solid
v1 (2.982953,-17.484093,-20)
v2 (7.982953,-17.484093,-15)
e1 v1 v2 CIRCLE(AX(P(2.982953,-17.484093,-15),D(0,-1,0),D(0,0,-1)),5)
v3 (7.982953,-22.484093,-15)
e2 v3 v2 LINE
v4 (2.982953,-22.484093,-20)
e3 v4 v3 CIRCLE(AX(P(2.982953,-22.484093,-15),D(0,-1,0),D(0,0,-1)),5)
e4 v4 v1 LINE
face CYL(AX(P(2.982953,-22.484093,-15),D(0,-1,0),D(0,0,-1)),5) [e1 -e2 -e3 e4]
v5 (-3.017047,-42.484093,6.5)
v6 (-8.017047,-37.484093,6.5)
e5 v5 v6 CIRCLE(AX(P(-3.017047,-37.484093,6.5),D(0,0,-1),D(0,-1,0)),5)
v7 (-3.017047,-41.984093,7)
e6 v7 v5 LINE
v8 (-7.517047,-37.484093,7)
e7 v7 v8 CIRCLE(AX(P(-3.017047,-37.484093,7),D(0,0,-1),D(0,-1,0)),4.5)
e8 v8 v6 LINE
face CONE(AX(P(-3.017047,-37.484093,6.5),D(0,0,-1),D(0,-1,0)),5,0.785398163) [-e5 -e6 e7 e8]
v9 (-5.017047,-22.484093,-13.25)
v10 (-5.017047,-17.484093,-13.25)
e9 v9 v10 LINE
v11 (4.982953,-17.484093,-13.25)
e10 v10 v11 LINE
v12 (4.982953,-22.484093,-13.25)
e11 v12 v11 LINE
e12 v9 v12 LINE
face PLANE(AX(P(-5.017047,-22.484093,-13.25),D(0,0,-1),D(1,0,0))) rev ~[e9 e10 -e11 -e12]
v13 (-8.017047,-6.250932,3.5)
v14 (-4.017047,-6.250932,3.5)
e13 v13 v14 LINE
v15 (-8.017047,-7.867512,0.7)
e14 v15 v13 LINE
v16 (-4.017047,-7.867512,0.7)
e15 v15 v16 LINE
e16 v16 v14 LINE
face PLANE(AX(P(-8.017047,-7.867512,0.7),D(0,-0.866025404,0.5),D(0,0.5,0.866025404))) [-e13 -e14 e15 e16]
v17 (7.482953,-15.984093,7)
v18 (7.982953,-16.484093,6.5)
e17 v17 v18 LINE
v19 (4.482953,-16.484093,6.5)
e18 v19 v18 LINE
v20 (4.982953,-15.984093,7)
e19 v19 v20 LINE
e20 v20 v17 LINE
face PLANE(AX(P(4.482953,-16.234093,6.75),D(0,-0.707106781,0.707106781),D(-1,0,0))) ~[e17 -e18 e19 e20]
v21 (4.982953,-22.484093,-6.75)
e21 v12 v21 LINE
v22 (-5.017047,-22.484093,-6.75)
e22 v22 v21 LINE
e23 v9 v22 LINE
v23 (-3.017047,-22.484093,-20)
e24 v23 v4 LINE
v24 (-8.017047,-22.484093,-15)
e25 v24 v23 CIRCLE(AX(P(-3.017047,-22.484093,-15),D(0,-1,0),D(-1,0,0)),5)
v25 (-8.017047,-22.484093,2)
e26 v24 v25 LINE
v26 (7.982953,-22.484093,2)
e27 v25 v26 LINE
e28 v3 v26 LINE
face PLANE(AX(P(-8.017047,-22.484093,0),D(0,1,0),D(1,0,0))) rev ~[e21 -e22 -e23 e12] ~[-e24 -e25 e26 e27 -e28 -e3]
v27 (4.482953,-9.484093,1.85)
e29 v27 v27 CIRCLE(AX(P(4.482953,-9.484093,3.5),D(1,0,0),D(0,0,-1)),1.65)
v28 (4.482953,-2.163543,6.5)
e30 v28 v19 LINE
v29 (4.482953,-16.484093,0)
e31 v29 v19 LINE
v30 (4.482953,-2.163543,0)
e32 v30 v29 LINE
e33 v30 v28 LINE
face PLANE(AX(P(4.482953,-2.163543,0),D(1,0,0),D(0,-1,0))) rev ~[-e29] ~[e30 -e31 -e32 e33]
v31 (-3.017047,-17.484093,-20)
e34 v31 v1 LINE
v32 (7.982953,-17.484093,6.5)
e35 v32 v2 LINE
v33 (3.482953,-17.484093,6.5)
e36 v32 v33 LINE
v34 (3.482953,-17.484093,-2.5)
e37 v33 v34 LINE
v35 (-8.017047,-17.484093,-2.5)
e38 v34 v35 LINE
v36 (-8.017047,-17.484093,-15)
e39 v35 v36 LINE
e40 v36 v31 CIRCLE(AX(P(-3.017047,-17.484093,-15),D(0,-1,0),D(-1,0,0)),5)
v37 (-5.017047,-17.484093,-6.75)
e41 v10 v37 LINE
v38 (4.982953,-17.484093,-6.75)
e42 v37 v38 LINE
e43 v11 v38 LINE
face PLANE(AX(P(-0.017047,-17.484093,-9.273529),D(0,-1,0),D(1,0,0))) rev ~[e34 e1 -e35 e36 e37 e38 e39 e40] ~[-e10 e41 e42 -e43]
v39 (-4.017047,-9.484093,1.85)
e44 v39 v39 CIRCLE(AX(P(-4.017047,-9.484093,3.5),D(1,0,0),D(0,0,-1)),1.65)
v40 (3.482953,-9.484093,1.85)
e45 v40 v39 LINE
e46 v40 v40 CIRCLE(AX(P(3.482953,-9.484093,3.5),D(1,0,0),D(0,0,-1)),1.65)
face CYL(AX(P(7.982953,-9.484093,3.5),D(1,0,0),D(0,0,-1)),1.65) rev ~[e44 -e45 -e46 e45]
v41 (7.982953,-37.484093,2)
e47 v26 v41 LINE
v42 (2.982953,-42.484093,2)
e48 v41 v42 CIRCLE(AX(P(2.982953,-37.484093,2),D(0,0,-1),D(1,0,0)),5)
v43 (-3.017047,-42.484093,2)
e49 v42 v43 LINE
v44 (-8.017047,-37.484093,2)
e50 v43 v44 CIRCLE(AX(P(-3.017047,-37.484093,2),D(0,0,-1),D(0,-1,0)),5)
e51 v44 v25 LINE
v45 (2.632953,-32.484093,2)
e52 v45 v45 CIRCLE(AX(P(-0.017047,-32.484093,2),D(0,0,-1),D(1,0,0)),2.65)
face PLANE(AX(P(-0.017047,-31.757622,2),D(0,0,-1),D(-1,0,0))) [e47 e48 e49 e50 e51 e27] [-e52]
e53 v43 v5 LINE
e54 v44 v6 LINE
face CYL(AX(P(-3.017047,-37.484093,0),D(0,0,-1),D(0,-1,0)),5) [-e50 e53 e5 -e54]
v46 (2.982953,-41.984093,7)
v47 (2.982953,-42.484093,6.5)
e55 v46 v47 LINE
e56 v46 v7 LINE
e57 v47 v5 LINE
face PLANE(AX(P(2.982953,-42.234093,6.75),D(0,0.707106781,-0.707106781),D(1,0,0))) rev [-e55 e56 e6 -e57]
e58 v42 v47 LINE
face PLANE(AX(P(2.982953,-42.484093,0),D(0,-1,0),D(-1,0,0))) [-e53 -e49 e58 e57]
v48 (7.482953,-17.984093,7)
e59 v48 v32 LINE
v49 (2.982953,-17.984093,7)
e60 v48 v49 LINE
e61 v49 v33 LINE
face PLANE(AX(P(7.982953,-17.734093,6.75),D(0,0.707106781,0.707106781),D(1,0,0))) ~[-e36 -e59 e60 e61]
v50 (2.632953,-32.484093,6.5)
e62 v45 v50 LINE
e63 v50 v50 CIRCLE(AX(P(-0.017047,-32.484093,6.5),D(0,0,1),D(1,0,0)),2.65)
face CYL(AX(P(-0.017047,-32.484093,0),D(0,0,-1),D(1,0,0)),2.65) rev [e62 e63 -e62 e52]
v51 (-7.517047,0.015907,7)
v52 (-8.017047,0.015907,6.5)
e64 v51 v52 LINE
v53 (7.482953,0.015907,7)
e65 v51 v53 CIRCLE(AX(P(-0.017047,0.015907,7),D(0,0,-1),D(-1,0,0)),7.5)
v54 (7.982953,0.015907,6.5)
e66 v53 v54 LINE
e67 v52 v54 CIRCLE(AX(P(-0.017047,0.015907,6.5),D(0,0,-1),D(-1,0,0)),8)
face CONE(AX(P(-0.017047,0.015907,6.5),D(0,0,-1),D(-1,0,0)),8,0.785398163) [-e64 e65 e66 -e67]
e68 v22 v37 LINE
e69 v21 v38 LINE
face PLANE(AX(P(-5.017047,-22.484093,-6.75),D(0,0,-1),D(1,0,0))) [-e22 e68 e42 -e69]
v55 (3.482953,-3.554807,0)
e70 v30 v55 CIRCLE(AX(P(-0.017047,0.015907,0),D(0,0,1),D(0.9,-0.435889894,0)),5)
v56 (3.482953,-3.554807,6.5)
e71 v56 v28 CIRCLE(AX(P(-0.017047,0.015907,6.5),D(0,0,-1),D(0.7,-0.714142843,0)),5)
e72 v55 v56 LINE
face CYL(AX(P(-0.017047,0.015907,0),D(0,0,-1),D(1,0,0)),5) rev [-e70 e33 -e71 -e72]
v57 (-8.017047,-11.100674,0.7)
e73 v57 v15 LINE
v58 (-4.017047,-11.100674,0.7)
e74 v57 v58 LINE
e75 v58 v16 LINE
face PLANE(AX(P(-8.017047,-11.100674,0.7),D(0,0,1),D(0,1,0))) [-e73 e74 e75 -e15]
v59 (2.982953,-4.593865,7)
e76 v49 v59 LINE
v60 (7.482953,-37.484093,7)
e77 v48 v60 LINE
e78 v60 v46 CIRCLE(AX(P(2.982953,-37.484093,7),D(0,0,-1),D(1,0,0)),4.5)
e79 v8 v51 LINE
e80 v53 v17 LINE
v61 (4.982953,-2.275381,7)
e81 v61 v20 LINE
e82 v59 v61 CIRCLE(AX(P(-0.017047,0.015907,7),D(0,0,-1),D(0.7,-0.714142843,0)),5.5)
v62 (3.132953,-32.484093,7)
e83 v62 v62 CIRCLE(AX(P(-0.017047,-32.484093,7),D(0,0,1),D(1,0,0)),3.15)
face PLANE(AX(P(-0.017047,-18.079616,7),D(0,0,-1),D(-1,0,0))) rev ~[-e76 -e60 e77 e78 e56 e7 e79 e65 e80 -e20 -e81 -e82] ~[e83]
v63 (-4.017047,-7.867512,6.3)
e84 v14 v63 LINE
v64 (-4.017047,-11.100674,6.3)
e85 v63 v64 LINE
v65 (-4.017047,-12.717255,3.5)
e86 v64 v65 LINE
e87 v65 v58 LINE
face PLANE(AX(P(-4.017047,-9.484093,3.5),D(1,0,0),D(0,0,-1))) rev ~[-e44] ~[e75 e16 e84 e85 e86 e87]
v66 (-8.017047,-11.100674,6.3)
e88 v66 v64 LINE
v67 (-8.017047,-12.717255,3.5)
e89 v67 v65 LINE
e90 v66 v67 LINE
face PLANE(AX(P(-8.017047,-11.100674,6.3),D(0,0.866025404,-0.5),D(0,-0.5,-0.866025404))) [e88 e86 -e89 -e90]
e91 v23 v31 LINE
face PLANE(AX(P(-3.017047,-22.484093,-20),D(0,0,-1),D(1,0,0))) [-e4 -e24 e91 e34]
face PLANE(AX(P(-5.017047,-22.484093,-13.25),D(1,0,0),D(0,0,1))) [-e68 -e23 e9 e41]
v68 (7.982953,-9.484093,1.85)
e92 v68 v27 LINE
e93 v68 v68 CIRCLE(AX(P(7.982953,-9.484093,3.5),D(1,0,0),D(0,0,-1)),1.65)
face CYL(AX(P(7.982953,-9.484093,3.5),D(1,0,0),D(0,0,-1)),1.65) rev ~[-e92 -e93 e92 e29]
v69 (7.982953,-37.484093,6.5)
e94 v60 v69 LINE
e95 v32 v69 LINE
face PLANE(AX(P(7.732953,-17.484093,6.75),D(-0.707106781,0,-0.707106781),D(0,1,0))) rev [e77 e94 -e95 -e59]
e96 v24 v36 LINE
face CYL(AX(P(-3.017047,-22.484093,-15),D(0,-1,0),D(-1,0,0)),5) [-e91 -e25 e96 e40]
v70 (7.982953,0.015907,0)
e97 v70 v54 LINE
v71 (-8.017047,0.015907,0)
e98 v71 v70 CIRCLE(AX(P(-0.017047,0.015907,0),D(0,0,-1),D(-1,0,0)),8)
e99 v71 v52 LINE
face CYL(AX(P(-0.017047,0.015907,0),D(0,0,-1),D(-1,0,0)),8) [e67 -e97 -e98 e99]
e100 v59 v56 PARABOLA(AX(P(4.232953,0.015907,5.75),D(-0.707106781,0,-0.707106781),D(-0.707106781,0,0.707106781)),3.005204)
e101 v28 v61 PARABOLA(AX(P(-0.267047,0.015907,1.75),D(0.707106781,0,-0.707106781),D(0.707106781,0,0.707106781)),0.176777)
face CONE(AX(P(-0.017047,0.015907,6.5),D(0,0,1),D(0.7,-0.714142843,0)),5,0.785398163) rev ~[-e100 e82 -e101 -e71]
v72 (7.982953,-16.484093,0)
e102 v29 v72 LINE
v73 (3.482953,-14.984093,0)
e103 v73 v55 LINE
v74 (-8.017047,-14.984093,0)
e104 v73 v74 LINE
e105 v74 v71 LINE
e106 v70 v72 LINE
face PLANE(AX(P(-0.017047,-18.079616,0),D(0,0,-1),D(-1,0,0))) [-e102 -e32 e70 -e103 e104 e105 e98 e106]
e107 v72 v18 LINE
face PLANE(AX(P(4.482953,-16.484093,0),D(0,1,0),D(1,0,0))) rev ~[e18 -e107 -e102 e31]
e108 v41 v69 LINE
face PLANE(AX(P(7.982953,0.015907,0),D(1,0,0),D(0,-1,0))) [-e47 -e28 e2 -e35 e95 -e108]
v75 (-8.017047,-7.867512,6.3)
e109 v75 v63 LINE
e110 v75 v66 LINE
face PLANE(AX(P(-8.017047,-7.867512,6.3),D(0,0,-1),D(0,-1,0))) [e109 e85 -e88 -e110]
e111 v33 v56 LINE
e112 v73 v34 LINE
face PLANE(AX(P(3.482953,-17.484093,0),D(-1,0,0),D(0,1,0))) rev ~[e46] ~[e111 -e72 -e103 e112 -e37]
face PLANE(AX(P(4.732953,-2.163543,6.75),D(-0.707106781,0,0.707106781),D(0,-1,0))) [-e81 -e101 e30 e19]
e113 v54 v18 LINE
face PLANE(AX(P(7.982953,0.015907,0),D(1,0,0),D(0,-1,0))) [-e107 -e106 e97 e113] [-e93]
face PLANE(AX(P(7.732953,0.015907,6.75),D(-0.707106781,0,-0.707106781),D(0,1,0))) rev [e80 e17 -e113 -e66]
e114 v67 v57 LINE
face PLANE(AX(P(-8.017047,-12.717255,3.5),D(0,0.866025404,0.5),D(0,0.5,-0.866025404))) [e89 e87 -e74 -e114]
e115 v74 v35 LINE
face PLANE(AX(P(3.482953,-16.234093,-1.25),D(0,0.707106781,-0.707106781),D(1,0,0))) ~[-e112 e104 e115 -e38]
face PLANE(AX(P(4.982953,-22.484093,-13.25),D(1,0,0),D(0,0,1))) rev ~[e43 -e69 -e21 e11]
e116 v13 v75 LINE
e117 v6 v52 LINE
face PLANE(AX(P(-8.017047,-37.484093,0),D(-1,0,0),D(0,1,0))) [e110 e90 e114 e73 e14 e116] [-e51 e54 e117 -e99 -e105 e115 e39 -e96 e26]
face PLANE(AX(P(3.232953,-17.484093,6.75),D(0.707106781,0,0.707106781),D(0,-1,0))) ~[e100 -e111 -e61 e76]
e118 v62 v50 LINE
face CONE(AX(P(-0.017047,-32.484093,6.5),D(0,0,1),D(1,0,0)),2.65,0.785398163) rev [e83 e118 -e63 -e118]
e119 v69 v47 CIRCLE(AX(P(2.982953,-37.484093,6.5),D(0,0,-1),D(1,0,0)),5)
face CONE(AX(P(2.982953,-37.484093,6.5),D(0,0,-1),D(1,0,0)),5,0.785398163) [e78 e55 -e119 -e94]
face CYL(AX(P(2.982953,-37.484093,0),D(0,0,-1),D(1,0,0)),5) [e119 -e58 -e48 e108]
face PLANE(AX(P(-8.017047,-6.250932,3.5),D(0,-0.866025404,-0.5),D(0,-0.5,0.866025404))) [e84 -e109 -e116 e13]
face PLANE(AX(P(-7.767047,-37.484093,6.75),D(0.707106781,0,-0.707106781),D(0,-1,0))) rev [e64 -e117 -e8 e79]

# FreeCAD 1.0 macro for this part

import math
import FreeCAD as App
import Part
import Sketcher
Q = App.Units.Quantity


def edges_at(feature, points):
    """Names of the edges that pass closest to the given points."""
    edges = feature.Shape.Edges
    near = lambda p: min(range(len(edges)), key=lambda i: edges[i].distToShape(Part.Vertex(*p))[0])
    return sorted({f"Edge{near(p) + 1}" for p in points})


def add_polygon(sketch, points):
    """Adds a closed chain of lines whose ends are joined by coincident constraints."""
    first, n = sketch.GeometryCount, len(points)
    for a, b in zip(points, points[1:] + points[:1]):
        sketch.addGeometry(Part.LineSegment(App.Vector(*a, 0), App.Vector(*b, 0)), False)
    for i in range(n):
        sketch.addConstraint(Sketcher.Constraint("Coincident", first + i, 2, first + (i + 1) % n, 1))

doc = App.newDocument("Part")
body = doc.addObject("PartDesign::Body", "Body")

# Sketch on XY plane
sketch1 = body.newObject("Sketcher::SketchObject", "Sketch")
sketch1.AttachmentSupport = (doc.getObject("XY_Plane"), [""])
sketch1.MapMode = "FlatFace"
sketch1.addGeometry([
    Part.LineSegment(App.Vector(8, -37.5, 0), App.Vector(8, 0, 0)),  # 0
    Part.ArcOfCircle(Part.Circle(App.Vector(0, 0, 0), App.Vector(0, 0, 1), 8), math.radians(0), math.radians(180)),  # 1
    Part.LineSegment(App.Vector(-8, 0, 0), App.Vector(-8, -37.5, 0)),  # 2
    Part.ArcOfCircle(Part.Circle(App.Vector(-3, -37.5, 0), App.Vector(0, 0, 1), 5), math.radians(180), math.radians(270)),  # 3
    Part.LineSegment(App.Vector(-3, -42.5, 0), App.Vector(3, -42.5, 0)),  # 4
    Part.ArcOfCircle(Part.Circle(App.Vector(3, -37.5, 0), App.Vector(0, 0, 1), 5), math.radians(-90), math.radians(0)),  # 5
    Part.Circle(App.Vector(0, -32.5, 0), App.Vector(0, 0, 1), 2.6),  # 6
    Part.Circle(App.Vector(0, 0, 0), App.Vector(0, 0, 1), 5),  # 7
], False)
sketch1.addConstraint([
    Sketcher.Constraint("Tangent", 0, 2, 1, 1),
    Sketcher.Constraint("Tangent", 1, 2, 2, 1),
    Sketcher.Constraint("Tangent", 2, 2, 3, 1),
    Sketcher.Constraint("Tangent", 3, 2, 4, 1),
    Sketcher.Constraint("Tangent", 4, 2, 5, 1),
    Sketcher.Constraint("Tangent", 5, 2, 0, 1),
    Sketcher.Constraint("Vertical", 0),
    Sketcher.Constraint("Vertical", 2),
    Sketcher.Constraint("Horizontal", 4),
    Sketcher.Constraint("Coincident", 7, 3, 1, 3),
    Sketcher.Constraint("Equal", 3, 5),
    Sketcher.Constraint("Equal", 5, 7),
    Sketcher.Constraint("Vertical", 1, 3, 6, 3),
    Sketcher.Constraint("Diameter", 7, Q("10 mm")),
    Sketcher.Constraint("Radius", 1, Q("8 mm")),
    Sketcher.Constraint("Diameter", 6, Q("5.3 mm")),
    Sketcher.Constraint("DistanceY", 0, 1, 0, 2, Q("37.5 mm")),
    Sketcher.Constraint("DistanceY", 3, 3, 6, 3, Q("5 mm")),
    Sketcher.Constraint("DistanceX", 1, 3, -1, 1, Q("0.017047 mm")),
    Sketcher.Constraint("DistanceY", -1, 1, 1, 3, Q("0.015907 mm")),
])
pad1 = body.newObject("PartDesign::Pad", "Pad")
pad1.Profile = sketch1
pad1.Length = 7

# Sketch on XZ plane
sketch2 = body.newObject("Sketcher::SketchObject", "Sketch001")
sketch2.AttachmentSupport = (doc.getObject("XZ_Plane"), [""])
sketch2.MapMode = "FlatFace"
sketch2.AttachmentOffset = App.Placement(App.Vector(0, 0, 22.484093), App.Rotation())
sketch2.addGeometry(Part.LineSegment(App.Vector(8, 0, 0), App.Vector(-8, 0, 0)), False)  # 0
sketch2.addGeometry(Part.LineSegment(App.Vector(-8, 0, 0), App.Vector(-8, -15, 0)), False)  # 1
sketch2.addGeometry(Part.ArcOfCircle(Part.Circle(App.Vector(-3, -15, 0), App.Vector(0, 0, 1), 5), math.radians(180), math.radians(270)), False)  # 2
sketch2.addGeometry(Part.LineSegment(App.Vector(-3, -20, 0), App.Vector(3, -20, 0)), False)  # 3
sketch2.addGeometry(Part.ArcOfCircle(Part.Circle(App.Vector(3, -15, 0), App.Vector(0, 0, 1), 5), math.radians(-90), math.radians(0)), False)  # 4
sketch2.addGeometry(Part.LineSegment(App.Vector(8, -15, 0), App.Vector(8, 0, 0)), False)  # 5
add_polygon(sketch2, [(5, -13), (-5, -13), (-5, -7), (5, -7)])  # lines 6-9
sketch2.addConstraint([
    Sketcher.Constraint("Coincident", 0, 2, 1, 1),
    Sketcher.Constraint("Tangent", 1, 2, 2, 1),
    Sketcher.Constraint("Tangent", 2, 2, 3, 1),
    Sketcher.Constraint("Tangent", 3, 2, 4, 1),
    Sketcher.Constraint("Tangent", 4, 2, 5, 1),
    Sketcher.Constraint("Coincident", 5, 2, 0, 1),
    Sketcher.Constraint("Horizontal", 0),
    Sketcher.Constraint("Vertical", 1),
    Sketcher.Constraint("Horizontal", 3),
    Sketcher.Constraint("Vertical", 5),
    Sketcher.Constraint("Horizontal", 6),
    Sketcher.Constraint("Vertical", 7),
    Sketcher.Constraint("Horizontal", 8),
    Sketcher.Constraint("Vertical", 9),
    Sketcher.Constraint("Equal", 2, 4),
    Sketcher.Constraint("PointOnObject", 0, 2, -1),
    Sketcher.Constraint("Radius", 2, Q("5 mm")),
    Sketcher.Constraint("DistanceX", 0, 2, 0, 1, Q("16 mm")),
    Sketcher.Constraint("DistanceX", 6, 2, 6, 1, Q("10 mm")),
    Sketcher.Constraint("DistanceY", 1, 2, 1, 1, Q("15 mm")),
    Sketcher.Constraint("DistanceY", 7, 1, 7, 2, Q("6.5 mm")),
    Sketcher.Constraint("DistanceX", 6, 2, 2, 3, Q("2 mm")),
    Sketcher.Constraint("DistanceY", 6, 2, -1, 1, Q("13.25 mm")),
    Sketcher.Constraint("DistanceX", 2, 3, -1, 1, Q("3.017047 mm")),
])
pad2 = body.newObject("PartDesign::Pad", "Pad001")
pad2.Profile = sketch2
pad2.Length = 5
pad2.Reversed = True

# Sketch on XY plane
sketch3 = body.newObject("Sketcher::SketchObject", "Sketch002")
sketch3.AttachmentSupport = (doc.getObject("XY_Plane"), [""])
sketch3.MapMode = "FlatFace"
sketch3.addGeometry([
    Part.LineSegment(App.Vector(4.5, -2.2, 0), App.Vector(4.5, -16.5, 0)),  # 0
    Part.LineSegment(App.Vector(4.5, -16.5, 0), App.Vector(8, -16.5, 0)),  # 1
    Part.LineSegment(App.Vector(8, -16.5, 0), App.Vector(8, -17.5, 0)),  # 2
    Part.LineSegment(App.Vector(8, -17.5, 0), App.Vector(3.5, -17.5, 0)),  # 3
    Part.LineSegment(App.Vector(3.5, -17.5, 0), App.Vector(3.5, -3.6, 0)),  # 4
    Part.ArcOfCircle(Part.Circle(App.Vector(0, 0, 0), App.Vector(0, 0, 1), 5), math.radians(-45.57), math.radians(-25.84)),  # 5
], False)
sketch3.addConstraint([
    Sketcher.Constraint("Coincident", 0, 2, 1, 1),
    Sketcher.Constraint("Coincident", 1, 2, 2, 1),
    Sketcher.Constraint("Coincident", 2, 2, 3, 1),
    Sketcher.Constraint("Coincident", 3, 2, 4, 1),
    Sketcher.Constraint("Coincident", 4, 2, 5, 1),
    Sketcher.Constraint("Coincident", 5, 2, 0, 1),
    Sketcher.Constraint("Vertical", 0),
    Sketcher.Constraint("Horizontal", 1),
    Sketcher.Constraint("Vertical", 2),
    Sketcher.Constraint("Horizontal", 3),
    Sketcher.Constraint("Vertical", 4),
    Sketcher.Constraint("Radius", 5, Q("5 mm")),
    Sketcher.Constraint("DistanceY", 2, 2, 2, 1, Q("1 mm")),
    Sketcher.Constraint("DistanceX", 1, 1, 1, 2, Q("3.5 mm")),
    Sketcher.Constraint("DistanceX", 3, 2, 3, 1, Q("4.5 mm")),
    Sketcher.Constraint("DistanceX", 5, 3, 1, 2, Q("8 mm")),
    Sketcher.Constraint("DistanceY", 0, 2, 5, 3, Q("16.5 mm")),
    Sketcher.Constraint("DistanceX", 5, 3, -1, 1, Q("0.017047 mm")),
    Sketcher.Constraint("DistanceY", -1, 1, 5, 3, Q("0.015907 mm")),
])
pocket1 = body.newObject("PartDesign::Pocket", "Pocket")
pocket1.Profile = sketch3
pocket1.Type = "ThroughAll"
pocket1.Reversed = True

# Sketch on YZ plane
sketch4 = body.newObject("Sketcher::SketchObject", "Sketch003")
sketch4.AttachmentSupport = (doc.getObject("YZ_Plane"), [""])
sketch4.MapMode = "FlatFace"
sketch4.AttachmentOffset = App.Placement(App.Vector(0, 0, 7.982953), App.Rotation())
sketch4.addGeometry(Part.Circle(App.Vector(-9.5, 3.5, 0), App.Vector(0, 0, 1), 1.6), False)
sketch4.addConstraint([
    Sketcher.Constraint("Diameter", 0, Q("3.3 mm")),
    Sketcher.Constraint("DistanceY", -1, 1, 0, 3, Q("3.5 mm")),
    Sketcher.Constraint("DistanceX", 0, 3, -1, 1, Q("9.484093 mm")),
])
pocket2 = body.newObject("PartDesign::Pocket", "Pocket001")
pocket2.Profile = sketch4
pocket2.Type = "ThroughAll"

# Sketch on YZ plane
sketch5 = body.newObject("Sketcher::SketchObject", "Sketch004")
sketch5.AttachmentSupport = (doc.getObject("YZ_Plane"), [""])
sketch5.MapMode = "FlatFace"
sketch5.AttachmentOffset = App.Placement(App.Vector(0, 0, -8.017047), App.Rotation())
add_polygon(sketch5, [(-7.9, 6.3), (-11.1, 6.3), (-12.7, 3.5), (-11.1, 0.7), (-7.9, 0.7), (-6.3, 3.5)])  # lines 0-5
sketch5.addConstraint([
    Sketcher.Constraint("Horizontal", 0),
    Sketcher.Constraint("Horizontal", 3),
    Sketcher.Constraint("Parallel", 1, 4),
    Sketcher.Constraint("Parallel", 2, 5),
    Sketcher.Constraint("Horizontal", 1, 2, 4, 2),
    Sketcher.Constraint("Vertical", 0, 2, 2, 2),
    Sketcher.Constraint("Vertical", 3, 2, 5, 2),
    Sketcher.Constraint("Angle", 1, Q("-120 deg")),
    Sketcher.Constraint("DistanceY", -1, 1, 0, 2, Q("6.3 mm")),
    Sketcher.Constraint("DistanceY", -1, 1, 1, 2, Q("3.5 mm")),
    Sketcher.Constraint("DistanceX", 0, 2, 0, 1, Q("3.233162 mm")),
    Sketcher.Constraint("DistanceX", 4, 2, -1, 1, Q("6.250932 mm")),
])
pocket3 = body.newObject("PartDesign::Pocket", "Pocket002")
pocket3.Profile = sketch5
pocket3.Length = 4
pocket3.Reversed = True
doc.recompute()

chamfer = body.newObject("PartDesign::Chamfer", "Chamfer")
chamfer.Base = (pocket3, edges_at(pocket3, [(-2.267, -17.484, 0)]))
chamfer.Size = 2.5

# Sketch on XY plane
sketch6 = body.newObject("Sketcher::SketchObject", "Sketch005")
sketch6.AttachmentSupport = (doc.getObject("XY_Plane"), [""])
sketch6.MapMode = "FlatFace"
sketch6.addGeometry([
    Part.LineSegment(App.Vector(3, -42, 0), App.Vector(-3, -42, 0)),  # 0
    Part.ArcOfCircle(Part.Circle(App.Vector(-3, -37, 0), App.Vector(0, 0, 1), 5), math.radians(180), math.radians(270)),  # 1
    Part.LineSegment(App.Vector(-8, -37, 0), App.Vector(-8, -22, 0)),  # 2
    Part.LineSegment(App.Vector(-8, -22, 0), App.Vector(8, -22, 0)),  # 3
    Part.LineSegment(App.Vector(8, -22, 0), App.Vector(8, -37, 0)),  # 4
    Part.ArcOfCircle(Part.Circle(App.Vector(3, -37, 0), App.Vector(0, 0, 1), 5), math.radians(-90), math.radians(0)),  # 5
], False)
sketch6.addConstraint([
    Sketcher.Constraint("Tangent", 0, 2, 1, 2),
    Sketcher.Constraint("Tangent", 1, 1, 2, 1),
    Sketcher.Constraint("Coincident", 2, 2, 3, 1),
    Sketcher.Constraint("Coincident", 3, 2, 4, 1),
    Sketcher.Constraint("Tangent", 4, 2, 5, 2),
    Sketcher.Constraint("Tangent", 5, 1, 0, 1),
    Sketcher.Constraint("Horizontal", 0),
    Sketcher.Constraint("Vertical", 2),
    Sketcher.Constraint("Horizontal", 3),
    Sketcher.Constraint("Vertical", 4),
    Sketcher.Constraint("Equal", 1, 5),
    Sketcher.Constraint("Radius", 1, Q("5 mm")),
    Sketcher.Constraint("DistanceX", 0, 2, 0, 1, Q("6 mm")),
    Sketcher.Constraint("DistanceY", 2, 1, 2, 2, Q("15 mm")),
    Sketcher.Constraint("DistanceX", 1, 3, -1, 1, Q("3.017047 mm")),
    Sketcher.Constraint("DistanceY", 1, 3, -1, 1, Q("37.484093 mm")),
])
pocket4 = body.newObject("PartDesign::Pocket", "Pocket003")
pocket4.Profile = sketch6
pocket4.Length = 2
pocket4.Reversed = True
doc.recompute()

chamfer2 = body.newObject("PartDesign::Chamfer", "Chamfer001")
chamfer2.Base = (pocket4, edges_at(pocket4, [
    (-2.667, -32.484, 7),
    (4.483, -9.324, 7),
    (-4.077, 2.934, 7),
    (3.483, -10.519, 7),
    (5.733, -17.484, 7),
    (7.983, -27.484, 7),
    (6.518, -41.02, 7),
    (-0.017, -42.484, 7),
    (-6.553, -41.02, 7),
    (-8.017, -18.734, 7),
    (-0.017, 8.016, 7),
    (6.233, -16.484, 7),
]))
chamfer2.Size = 0.5

doc.recompute()
